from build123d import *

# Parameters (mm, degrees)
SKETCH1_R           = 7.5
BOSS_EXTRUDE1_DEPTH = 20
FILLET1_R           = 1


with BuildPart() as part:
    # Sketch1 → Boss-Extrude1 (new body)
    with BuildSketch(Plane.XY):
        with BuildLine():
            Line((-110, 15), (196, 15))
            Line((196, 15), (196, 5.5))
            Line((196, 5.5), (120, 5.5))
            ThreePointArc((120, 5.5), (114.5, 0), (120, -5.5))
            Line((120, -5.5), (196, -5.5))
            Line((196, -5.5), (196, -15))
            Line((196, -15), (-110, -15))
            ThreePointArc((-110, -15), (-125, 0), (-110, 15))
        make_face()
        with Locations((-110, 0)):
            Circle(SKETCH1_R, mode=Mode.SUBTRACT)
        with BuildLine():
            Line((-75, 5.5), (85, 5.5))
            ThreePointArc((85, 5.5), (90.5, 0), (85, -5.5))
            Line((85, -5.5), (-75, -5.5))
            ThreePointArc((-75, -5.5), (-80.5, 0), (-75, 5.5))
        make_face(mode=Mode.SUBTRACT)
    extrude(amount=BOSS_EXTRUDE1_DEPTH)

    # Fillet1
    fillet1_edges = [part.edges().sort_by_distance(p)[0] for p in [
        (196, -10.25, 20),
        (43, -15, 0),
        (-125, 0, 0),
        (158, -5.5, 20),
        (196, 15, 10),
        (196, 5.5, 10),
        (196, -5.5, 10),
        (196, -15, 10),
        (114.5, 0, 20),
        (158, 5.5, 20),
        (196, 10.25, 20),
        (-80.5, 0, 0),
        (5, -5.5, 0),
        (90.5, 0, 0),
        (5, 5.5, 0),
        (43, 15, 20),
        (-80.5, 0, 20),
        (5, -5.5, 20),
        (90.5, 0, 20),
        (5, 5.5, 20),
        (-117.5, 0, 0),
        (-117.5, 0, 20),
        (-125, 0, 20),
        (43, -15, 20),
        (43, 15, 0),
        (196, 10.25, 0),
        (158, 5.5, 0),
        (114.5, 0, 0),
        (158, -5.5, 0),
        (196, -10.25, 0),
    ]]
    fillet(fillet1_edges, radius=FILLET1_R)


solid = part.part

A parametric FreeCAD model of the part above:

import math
import FreeCAD as App
import Part
import Sketcher
Q = App.Units.Quantity

doc = App.newDocument("Part")
body = doc.addObject("PartDesign::Body", "Body")

# Sketch on XY plane
sketch1 = body.newObject("Sketcher::SketchObject", "Sketch")
sketch1.AttachmentSupport = (doc.getObject("XY_Plane"), [""])
sketch1.MapMode = "FlatFace"
sketch1.addGeometry([
    Part.LineSegment(App.Vector(196, 15, 0), App.Vector(-110, 15, 0)),  # 0
    Part.ArcOfCircle(Part.Circle(App.Vector(-110, 0, 0), App.Vector(0, 0, 1), 15), math.radians(90), math.radians(270)),  # 1
    Part.LineSegment(App.Vector(-110, -15, 0), App.Vector(196, -15, 0)),  # 2
    Part.LineSegment(App.Vector(196, -15, 0), App.Vector(196, -5.5, 0)),  # 3
    Part.LineSegment(App.Vector(196, -5.5, 0), App.Vector(120, -5.5, 0)),  # 4
    Part.ArcOfCircle(Part.Circle(App.Vector(120, 0, 0), App.Vector(0, 0, 1), 5.5), math.radians(90), math.radians(270)),  # 5
    Part.LineSegment(App.Vector(120, 5.5, 0), App.Vector(196, 5.5, 0)),  # 6
    Part.LineSegment(App.Vector(196, 5.5, 0), App.Vector(196, 15, 0)),  # 7
    Part.LineSegment(App.Vector(-75, 5.5, 0), App.Vector(85, 5.5, 0)),  # 8
    Part.ArcOfCircle(Part.Circle(App.Vector(85, 0, 0), App.Vector(0, 0, 1), 5.5), math.radians(-90), math.radians(90)),  # 9
    Part.LineSegment(App.Vector(85, -5.5, 0), App.Vector(-75, -5.5, 0)),  # 10
    Part.ArcOfCircle(Part.Circle(App.Vector(-75, 0, 0), App.Vector(0, 0, 1), 5.5), math.radians(90), math.radians(270)),  # 11
    Part.Circle(App.Vector(-110, 0, 0), App.Vector(0, 0, 1), 7.5),  # 12
], False)
sketch1.addConstraint([
    Sketcher.Constraint("Tangent", 0, 2, 1, 1),
    Sketcher.Constraint("Tangent", 1, 2, 2, 1),
    Sketcher.Constraint("Coincident", 2, 2, 3, 1),
    Sketcher.Constraint("Coincident", 3, 2, 4, 1),
    Sketcher.Constraint("Tangent", 4, 2, 5, 2),
    Sketcher.Constraint("Tangent", 5, 1, 6, 1),
    Sketcher.Constraint("Coincident", 6, 2, 7, 1),
    Sketcher.Constraint("Coincident", 7, 2, 0, 1),
    Sketcher.Constraint("Tangent", 8, 2, 9, 2),
    Sketcher.Constraint("Tangent", 9, 1, 10, 1),
    Sketcher.Constraint("Tangent", 10, 2, 11, 2),
    Sketcher.Constraint("Tangent", 11, 1, 8, 1),
    Sketcher.Constraint("Horizontal", 0),
    Sketcher.Constraint("Horizontal", 2),
    Sketcher.Constraint("Vertical", 3),
    Sketcher.Constraint("Horizontal", 4),
    Sketcher.Constraint("Horizontal", 6),
    Sketcher.Constraint("Vertical", 7),
    Sketcher.Constraint("Horizontal", 8),
    Sketcher.Constraint("Horizontal", 10),
    Sketcher.Constraint("Coincident", 12, 3, 1, 3),
    Sketcher.Constraint("Equal", 5, 9),
    Sketcher.Constraint("Symmetric", 3, 2, 6, 2, -1),
    Sketcher.Constraint("PointOnObject", 1, 3, -1),
    Sketcher.Constraint("PointOnObject", 9, 3, -1),
    Sketcher.Constraint("Diameter", 12, Q("15 mm")),
    Sketcher.Constraint("Radius", 1, Q("15 mm")),
    Sketcher.Constraint("Radius", 5, Q("5.5 mm")),
    Sketcher.Constraint("DistanceX", 0, 2, 0, 1, Q("306 mm")),
    Sketcher.Constraint("DistanceX", 4, 2, 4, 1, Q("76 mm")),
    Sketcher.Constraint("DistanceX", 8, 1, 8, 2, Q("160 mm")),
    Sketcher.Constraint("DistanceX", 1, 3, -1, 1, Q("110 mm")),
    Sketcher.Constraint("DistanceX", -1, 1, 9, 3, Q("85 mm")),
])
pad1 = body.newObject("PartDesign::Pad", "Pad")
pad1.Profile = sketch1
pad1.Length = 20
doc.recompute()

fillet = body.newObject("PartDesign::Fillet", "Fillet")
fillet.Base = (pad1, ["Edge1"])
fillet.UseAllEdges = True
fillet.Radius = 1

doc.recompute()
